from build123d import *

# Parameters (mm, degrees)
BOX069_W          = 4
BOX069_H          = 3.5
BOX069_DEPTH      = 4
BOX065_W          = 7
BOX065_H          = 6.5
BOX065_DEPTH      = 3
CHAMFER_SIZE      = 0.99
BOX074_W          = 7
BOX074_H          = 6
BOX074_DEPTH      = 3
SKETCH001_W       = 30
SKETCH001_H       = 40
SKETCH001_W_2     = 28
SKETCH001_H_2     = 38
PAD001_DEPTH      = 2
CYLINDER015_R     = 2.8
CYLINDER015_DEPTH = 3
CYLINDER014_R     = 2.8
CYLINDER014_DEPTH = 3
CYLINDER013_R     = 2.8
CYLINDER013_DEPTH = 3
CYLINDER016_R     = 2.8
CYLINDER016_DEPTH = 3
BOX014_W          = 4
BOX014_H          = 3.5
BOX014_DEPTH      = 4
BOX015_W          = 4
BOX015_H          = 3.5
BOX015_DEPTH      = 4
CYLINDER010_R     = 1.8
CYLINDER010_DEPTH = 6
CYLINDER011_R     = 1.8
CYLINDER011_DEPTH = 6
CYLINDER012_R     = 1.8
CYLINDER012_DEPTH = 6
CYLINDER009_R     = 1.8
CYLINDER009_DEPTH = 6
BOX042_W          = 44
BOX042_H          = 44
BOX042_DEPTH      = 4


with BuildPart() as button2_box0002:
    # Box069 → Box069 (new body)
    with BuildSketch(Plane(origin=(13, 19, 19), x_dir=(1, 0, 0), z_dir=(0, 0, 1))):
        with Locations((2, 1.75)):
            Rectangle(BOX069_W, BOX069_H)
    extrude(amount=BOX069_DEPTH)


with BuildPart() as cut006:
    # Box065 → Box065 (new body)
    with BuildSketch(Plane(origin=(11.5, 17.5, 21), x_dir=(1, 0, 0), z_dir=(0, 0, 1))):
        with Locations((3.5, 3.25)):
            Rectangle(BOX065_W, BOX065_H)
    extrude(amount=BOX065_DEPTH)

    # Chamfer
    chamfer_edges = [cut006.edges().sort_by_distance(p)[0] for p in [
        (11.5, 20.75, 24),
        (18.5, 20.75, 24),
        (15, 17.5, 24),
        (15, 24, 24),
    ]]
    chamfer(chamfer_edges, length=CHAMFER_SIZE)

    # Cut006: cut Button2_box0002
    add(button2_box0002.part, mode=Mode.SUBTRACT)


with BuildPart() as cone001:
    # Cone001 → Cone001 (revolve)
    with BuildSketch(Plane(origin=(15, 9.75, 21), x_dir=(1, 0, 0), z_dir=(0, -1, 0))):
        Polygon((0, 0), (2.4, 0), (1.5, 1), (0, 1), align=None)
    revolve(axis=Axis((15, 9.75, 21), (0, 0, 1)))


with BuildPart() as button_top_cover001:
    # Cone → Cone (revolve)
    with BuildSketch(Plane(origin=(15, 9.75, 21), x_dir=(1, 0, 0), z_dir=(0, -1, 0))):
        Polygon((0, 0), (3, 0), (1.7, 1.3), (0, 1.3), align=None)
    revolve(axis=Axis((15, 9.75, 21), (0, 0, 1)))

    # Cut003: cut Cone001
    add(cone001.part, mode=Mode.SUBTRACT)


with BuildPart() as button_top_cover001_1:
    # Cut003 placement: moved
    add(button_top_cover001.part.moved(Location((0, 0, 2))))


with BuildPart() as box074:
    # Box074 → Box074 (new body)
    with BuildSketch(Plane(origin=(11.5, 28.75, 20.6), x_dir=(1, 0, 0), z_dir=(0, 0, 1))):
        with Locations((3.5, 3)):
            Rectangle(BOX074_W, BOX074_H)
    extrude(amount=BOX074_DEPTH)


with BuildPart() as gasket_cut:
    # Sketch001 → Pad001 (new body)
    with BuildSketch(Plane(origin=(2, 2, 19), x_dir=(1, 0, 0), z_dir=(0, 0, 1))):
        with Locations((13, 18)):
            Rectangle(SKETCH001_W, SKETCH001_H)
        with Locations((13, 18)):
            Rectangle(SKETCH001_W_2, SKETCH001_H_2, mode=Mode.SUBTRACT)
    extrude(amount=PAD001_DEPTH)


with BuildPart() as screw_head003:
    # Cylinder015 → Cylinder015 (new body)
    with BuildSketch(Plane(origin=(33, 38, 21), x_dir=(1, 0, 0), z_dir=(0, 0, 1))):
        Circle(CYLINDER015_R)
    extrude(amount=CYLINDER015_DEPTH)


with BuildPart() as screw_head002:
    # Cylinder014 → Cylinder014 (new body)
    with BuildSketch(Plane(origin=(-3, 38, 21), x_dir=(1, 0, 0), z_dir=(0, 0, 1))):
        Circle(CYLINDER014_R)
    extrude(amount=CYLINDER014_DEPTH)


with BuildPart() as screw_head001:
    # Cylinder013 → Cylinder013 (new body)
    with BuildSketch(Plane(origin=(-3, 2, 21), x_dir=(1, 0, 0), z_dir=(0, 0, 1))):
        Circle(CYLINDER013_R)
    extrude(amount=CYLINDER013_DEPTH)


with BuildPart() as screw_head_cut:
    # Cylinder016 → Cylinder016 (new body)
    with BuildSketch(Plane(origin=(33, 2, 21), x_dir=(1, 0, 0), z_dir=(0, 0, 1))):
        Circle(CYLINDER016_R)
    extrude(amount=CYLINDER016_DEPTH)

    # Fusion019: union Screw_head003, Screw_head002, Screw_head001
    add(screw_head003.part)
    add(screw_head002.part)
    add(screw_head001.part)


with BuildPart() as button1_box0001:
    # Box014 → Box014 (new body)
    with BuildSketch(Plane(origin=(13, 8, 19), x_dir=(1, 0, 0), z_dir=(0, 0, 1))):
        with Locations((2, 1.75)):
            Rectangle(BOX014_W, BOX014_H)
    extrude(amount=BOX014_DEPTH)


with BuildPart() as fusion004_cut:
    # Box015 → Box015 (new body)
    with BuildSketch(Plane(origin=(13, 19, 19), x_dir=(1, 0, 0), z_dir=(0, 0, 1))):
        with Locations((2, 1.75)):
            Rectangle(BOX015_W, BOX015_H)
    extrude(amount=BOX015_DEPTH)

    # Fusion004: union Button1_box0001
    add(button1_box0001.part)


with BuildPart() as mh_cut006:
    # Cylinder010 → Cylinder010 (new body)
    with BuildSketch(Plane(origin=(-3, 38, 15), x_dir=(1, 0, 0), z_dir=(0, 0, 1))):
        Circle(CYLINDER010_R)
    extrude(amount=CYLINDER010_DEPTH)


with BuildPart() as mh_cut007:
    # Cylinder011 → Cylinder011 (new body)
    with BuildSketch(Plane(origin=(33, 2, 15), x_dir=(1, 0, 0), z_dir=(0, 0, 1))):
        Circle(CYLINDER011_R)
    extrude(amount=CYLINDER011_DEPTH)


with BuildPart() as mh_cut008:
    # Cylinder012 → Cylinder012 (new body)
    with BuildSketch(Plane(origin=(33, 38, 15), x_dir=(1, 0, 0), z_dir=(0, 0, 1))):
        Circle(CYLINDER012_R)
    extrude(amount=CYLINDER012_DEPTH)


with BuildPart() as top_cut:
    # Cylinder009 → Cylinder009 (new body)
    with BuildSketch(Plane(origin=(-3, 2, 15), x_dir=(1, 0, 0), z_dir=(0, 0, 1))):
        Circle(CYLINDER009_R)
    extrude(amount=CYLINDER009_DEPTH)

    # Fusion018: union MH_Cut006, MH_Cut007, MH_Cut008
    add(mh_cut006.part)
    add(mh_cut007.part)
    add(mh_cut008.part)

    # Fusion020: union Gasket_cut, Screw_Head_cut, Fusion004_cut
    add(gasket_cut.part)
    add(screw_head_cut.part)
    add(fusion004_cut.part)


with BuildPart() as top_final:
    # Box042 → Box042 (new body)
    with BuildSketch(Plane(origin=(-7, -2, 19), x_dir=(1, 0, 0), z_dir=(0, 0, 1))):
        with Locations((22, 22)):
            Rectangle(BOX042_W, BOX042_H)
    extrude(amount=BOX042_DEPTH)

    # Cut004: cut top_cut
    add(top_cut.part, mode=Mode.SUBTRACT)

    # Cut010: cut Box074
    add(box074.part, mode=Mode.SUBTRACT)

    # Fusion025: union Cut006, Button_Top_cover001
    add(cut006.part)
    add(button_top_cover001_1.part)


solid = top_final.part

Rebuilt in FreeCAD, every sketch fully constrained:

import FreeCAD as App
import Part
import Sketcher
from FreeCAD import Vector
Q = App.Units.Quantity


def edges_at(feature, points):
    """Names of the edges that pass closest to the given points."""
    edges = feature.Shape.Edges
    near = lambda p: min(range(len(edges)), key=lambda i: edges[i].distToShape(Part.Vertex(*p))[0])
    return sorted({f"Edge{near(p) + 1}" for p in points})


def add_polygon(sketch, points):
    """Adds a closed chain of lines whose ends are joined by coincident constraints."""
    first, n = sketch.GeometryCount, len(points)
    for a, b in zip(points, points[1:] + points[:1]):
        sketch.addGeometry(Part.LineSegment(App.Vector(*a, 0), App.Vector(*b, 0)), False)
    for i in range(n):
        sketch.addConstraint(Sketcher.Constraint("Coincident", first + i, 2, first + (i + 1) % n, 1))

doc = App.newDocument("Part")
body = doc.addObject("PartDesign::Body", "Body")

# Sketch on XY plane
sketch1 = body.newObject("Sketcher::SketchObject", "Sketch")
sketch1.AttachmentSupport = (doc.getObject("XY_Plane"), [""])
sketch1.MapMode = "FlatFace"
sketch1.AttachmentOffset = App.Placement(Vector(0, 0, 19), App.Rotation())
add_polygon(sketch1, [(13, 22.5), (13, 19), (17, 19), (17, 22.5)])  # lines 0-3
sketch1.addConstraint([
    Sketcher.Constraint("Vertical", 0),
    Sketcher.Constraint("Horizontal", 1),
    Sketcher.Constraint("Vertical", 2),
    Sketcher.Constraint("Horizontal", 3),
    Sketcher.Constraint("DistanceX", 1, 1, 1, 2, Q("4 mm")),
    Sketcher.Constraint("DistanceY", 0, 2, 0, 1, Q("3.5 mm")),
    Sketcher.Constraint("DistanceX", -1, 1, 0, 2, Q("13 mm")),
    Sketcher.Constraint("DistanceY", -1, 1, 0, 2, Q("19 mm")),
])
pad1 = body.newObject("PartDesign::Pad", "Pad")
pad1.Profile = sketch1
pad1.Length = 4
body2 = doc.addObject("PartDesign::Body", "Body001")

# Sketch on XY plane
sketch2 = body2.newObject("Sketcher::SketchObject", "Sketch001")
sketch2.AttachmentSupport = (doc.getObject("XY_Plane001"), [""])
sketch2.MapMode = "FlatFace"
sketch2.AttachmentOffset = App.Placement(Vector(0, 0, 21), App.Rotation())
add_polygon(sketch2, [(11.5, 24), (11.5, 17.5), (18.5, 17.5), (18.5, 24)])  # lines 0-3
sketch2.addConstraint([
    Sketcher.Constraint("Vertical", 0),
    Sketcher.Constraint("Horizontal", 1),
    Sketcher.Constraint("Vertical", 2),
    Sketcher.Constraint("Horizontal", 3),
    Sketcher.Constraint("DistanceX", 1, 1, 1, 2, Q("7 mm")),
    Sketcher.Constraint("DistanceY", 0, 2, 0, 1, Q("6.5 mm")),
    Sketcher.Constraint("DistanceY", -1, 1, 2, 2, Q("24 mm")),
    Sketcher.Constraint("DistanceX", -1, 1, 0, 2, Q("11.5 mm")),
])
pad2 = body2.newObject("PartDesign::Pad", "Pad001")
pad2.Profile = sketch2
pad2.Length = 3
doc.recompute()

chamfer = body2.newObject("PartDesign::Chamfer", "Chamfer")
chamfer.Base = (pad2, edges_at(pad2, [
    (11.5, 20.75, 24),
    (18.5, 20.75, 24),
    (15, 17.5, 24),
    (15, 24, 24),
]))
chamfer.Size = 0.99
doc.recompute()

boolean = body2.newObject("PartDesign::Boolean", "Boolean")
boolean.Type = "Cut"
boolean.addObjects([body])
body3 = doc.addObject("PartDesign::Body", "Body002")

# Sketch on XZ plane
sketch3 = body3.newObject("Sketcher::SketchObject", "Sketch002")
sketch3.AttachmentSupport = (doc.getObject("XZ_Plane002"), [""])
sketch3.MapMode = "FlatFace"
sketch3.AttachmentOffset = App.Placement(Vector(0, 0, -9.75), App.Rotation())
add_polygon(sketch3, [(15, 21), (17.4, 21), (16.5, 22), (15, 22)])  # lines 0-3
sketch3.addGeometry(Part.LineSegment(Vector(15, 21, 0), Vector(15, 22, 0)), True)  # axis
sketch3.addConstraint([
    Sketcher.Constraint("Horizontal", 0),
    Sketcher.Constraint("Horizontal", 2),
    Sketcher.Constraint("Vertical", 3),
    Sketcher.Constraint("Vertical", 4),
    Sketcher.Constraint("Coincident", 4, 1, 3, 2),
    Sketcher.Constraint("Horizontal", 1, 2, 4, 2),
    Sketcher.Constraint("DistanceY", 3, 2, 3, 1, Q("1 mm")),
    Sketcher.Constraint("DistanceX", 0, 1, 0, 2, Q("2.4 mm")),
    Sketcher.Constraint("DistanceX", 2, 2, 2, 1, Q("1.5 mm")),
    Sketcher.Constraint("DistanceY", -1, 1, 0, 2, Q("21 mm")),
    Sketcher.Constraint("DistanceX", -1, 1, 2, 2, Q("15 mm")),
])
revolution = body3.newObject("PartDesign::Revolution", "Revolution")
revolution.Profile = sketch3
revolution.ReferenceAxis = (sketch3, ["Axis0"])
revolution.Angle = 360
body4 = doc.addObject("PartDesign::Body", "Body003")

# Sketch on XZ plane
sketch4 = body4.newObject("Sketcher::SketchObject", "Sketch003")
sketch4.AttachmentSupport = (doc.getObject("XZ_Plane003"), [""])
sketch4.MapMode = "FlatFace"
sketch4.AttachmentOffset = App.Placement(Vector(0, 0, -9.75), App.Rotation())
add_polygon(sketch4, [(15, 21), (18, 21), (16.7, 22.3), (15, 22.3)])  # lines 0-3
sketch4.addGeometry(Part.LineSegment(Vector(15, 21, 0), Vector(15, 22.3, 0)), True)  # axis
sketch4.addConstraint([
    Sketcher.Constraint("Horizontal", 0),
    Sketcher.Constraint("Horizontal", 2),
    Sketcher.Constraint("Vertical", 3),
    Sketcher.Constraint("Vertical", 4),
    Sketcher.Constraint("Coincident", 4, 1, 3, 2),
    Sketcher.Constraint("Horizontal", 1, 2, 4, 2),
    Sketcher.Constraint("DistanceX", 0, 1, 0, 2, Q("3 mm")),
    Sketcher.Constraint("Angle", 1, Q("135 deg")),
    Sketcher.Constraint("DistanceX", 2, 2, 2, 1, Q("1.7 mm")),
    Sketcher.Constraint("DistanceX", -1, 1, 0, 2, Q("18 mm")),
    Sketcher.Constraint("DistanceY", -1, 1, 0, 2, Q("21 mm")),
])
revolution2 = body4.newObject("PartDesign::Revolution", "Revolution001")
revolution2.Profile = sketch4
revolution2.ReferenceAxis = (sketch4, ["Axis0"])
revolution2.Angle = 360
doc.recompute()

boolean2 = body4.newObject("PartDesign::Boolean", "Boolean001")
boolean2.Type = "Cut"
boolean2.addObjects([body3])
body5 = doc.addObject("PartDesign::Body", "Body004")
doc.recompute()

body4.Placement = App.Placement(Vector(0, 0, 2), App.Rotation(Vector(0, 0, 1), 0))
boolean3 = body5.newObject("PartDesign::Boolean", "Boolean002")
boolean3.Type = "Fuse"
boolean3.addObjects([body4])
body6 = doc.addObject("PartDesign::Body", "Body005")

# Sketch on XY plane
sketch5 = body6.newObject("Sketcher::SketchObject", "Sketch004")
sketch5.AttachmentSupport = (doc.getObject("XY_Plane005"), [""])
sketch5.MapMode = "FlatFace"
sketch5.AttachmentOffset = App.Placement(Vector(0, 0, 20.6), App.Rotation())
add_polygon(sketch5, [(11.5, 34.75), (11.5, 28.75), (18.5, 28.75), (18.5, 34.75)])  # lines 0-3
sketch5.addConstraint([
    Sketcher.Constraint("Vertical", 0),
    Sketcher.Constraint("Horizontal", 1),
    Sketcher.Constraint("Vertical", 2),
    Sketcher.Constraint("Horizontal", 3),
    Sketcher.Constraint("DistanceX", 1, 1, 1, 2, Q("7 mm")),
    Sketcher.Constraint("DistanceY", 0, 2, 0, 1, Q("6 mm")),
    Sketcher.Constraint("DistanceX", -1, 1, 0, 2, Q("11.5 mm")),
    Sketcher.Constraint("DistanceY", -1, 1, 0, 2, Q("28.75 mm")),
])
pad3 = body6.newObject("PartDesign::Pad", "Pad002")
pad3.Profile = sketch5
pad3.Length = 3
body7 = doc.addObject("PartDesign::Body", "Body006")

# Sketch on XY plane
sketch6 = body7.newObject("Sketcher::SketchObject", "Sketch005")
sketch6.AttachmentSupport = (doc.getObject("XY_Plane006"), [""])
sketch6.MapMode = "FlatFace"
sketch6.AttachmentOffset = App.Placement(Vector(0, 0, 19), App.Rotation())
add_polygon(sketch6, [(0, 40), (0, 0), (30, 0), (30, 40)])  # lines 0-3
add_polygon(sketch6, [(29, 1), (1, 1), (1, 39), (29, 39)])  # lines 4-7
sketch6.addConstraint([
    Sketcher.Constraint("Vertical", 0),
    Sketcher.Constraint("Horizontal", 1),
    Sketcher.Constraint("Vertical", 2),
    Sketcher.Constraint("Horizontal", 3),
    Sketcher.Constraint("Horizontal", 4),
    Sketcher.Constraint("Vertical", 5),
    Sketcher.Constraint("Horizontal", 6),
    Sketcher.Constraint("Vertical", 7),
    Sketcher.Constraint("Coincident", 0, 2, -1, 1),
    Sketcher.Constraint("DistanceX", 1, 1, 1, 2, Q("30 mm")),
    Sketcher.Constraint("DistanceX", 4, 2, 4, 1, Q("28 mm")),
    Sketcher.Constraint("DistanceY", 0, 2, 0, 1, Q("40 mm")),
    Sketcher.Constraint("DistanceY", 5, 1, 5, 2, Q("38 mm")),
    Sketcher.Constraint("DistanceX", -1, 1, 4, 2, Q("1 mm")),
    Sketcher.Constraint("DistanceY", -1, 1, 4, 2, Q("1 mm")),
])
pad4 = body7.newObject("PartDesign::Pad", "Pad003")
pad4.Profile = sketch6
pad4.Length = 2
body8 = doc.addObject("PartDesign::Body", "Body007")

# Sketch on XY plane
sketch7 = body8.newObject("Sketcher::SketchObject", "Sketch006")
sketch7.AttachmentSupport = (doc.getObject("XY_Plane007"), [""])
sketch7.MapMode = "FlatFace"
sketch7.AttachmentOffset = App.Placement(Vector(0, 0, 21), App.Rotation())
sketch7.addGeometry(Part.Circle(Vector(33, 38, 0), Vector(0, 0, 1), 2.8), False)
sketch7.addConstraint([
    Sketcher.Constraint("Diameter", 0, Q("5.6 mm")),
    Sketcher.Constraint("DistanceX", -1, 1, 0, 3, Q("33 mm")),
    Sketcher.Constraint("DistanceY", -1, 1, 0, 3, Q("38 mm")),
])
pad5 = body8.newObject("PartDesign::Pad", "Pad004")
pad5.Profile = sketch7
pad5.Length = 3
body9 = doc.addObject("PartDesign::Body", "Body008")

# Sketch on XY plane
sketch8 = body9.newObject("Sketcher::SketchObject", "Sketch007")
sketch8.AttachmentSupport = (doc.getObject("XY_Plane008"), [""])
sketch8.MapMode = "FlatFace"
sketch8.AttachmentOffset = App.Placement(Vector(0, 0, 21), App.Rotation())
sketch8.addGeometry(Part.Circle(Vector(-3, 38, 0), Vector(0, 0, 1), 2.8), False)
sketch8.addConstraint([
    Sketcher.Constraint("Diameter", 0, Q("5.6 mm")),
    Sketcher.Constraint("DistanceX", 0, 3, -1, 1, Q("3 mm")),
    Sketcher.Constraint("DistanceY", -1, 1, 0, 3, Q("38 mm")),
])
pad6 = body9.newObject("PartDesign::Pad", "Pad005")
pad6.Profile = sketch8
pad6.Length = 3
body10 = doc.addObject("PartDesign::Body", "Body009")

# Sketch on XY plane
sketch9 = body10.newObject("Sketcher::SketchObject", "Sketch008")
sketch9.AttachmentSupport = (doc.getObject("XY_Plane009"), [""])
sketch9.MapMode = "FlatFace"
sketch9.AttachmentOffset = App.Placement(Vector(0, 0, 21), App.Rotation())
sketch9.addGeometry(Part.Circle(Vector(-3, 2, 0), Vector(0, 0, 1), 2.8), False)
sketch9.addConstraint([
    Sketcher.Constraint("Diameter", 0, Q("5.6 mm")),
    Sketcher.Constraint("DistanceX", 0, 3, -1, 1, Q("3 mm")),
    Sketcher.Constraint("DistanceY", -1, 1, 0, 3, Q("2 mm")),
])
pad7 = body10.newObject("PartDesign::Pad", "Pad006")
pad7.Profile = sketch9
pad7.Length = 3
body11 = doc.addObject("PartDesign::Body", "Body010")
body11.AllowCompound = True

# Sketch on XY plane
sketch10 = body11.newObject("Sketcher::SketchObject", "Sketch009")
sketch10.AttachmentSupport = (doc.getObject("XY_Plane010"), [""])
sketch10.MapMode = "FlatFace"
sketch10.AttachmentOffset = App.Placement(Vector(0, 0, 21), App.Rotation())
sketch10.addGeometry(Part.Circle(Vector(33, 2, 0), Vector(0, 0, 1), 2.8), False)
sketch10.addConstraint([
    Sketcher.Constraint("Diameter", 0, Q("5.6 mm")),
    Sketcher.Constraint("DistanceX", -1, 1, 0, 3, Q("33 mm")),
    Sketcher.Constraint("DistanceY", -1, 1, 0, 3, Q("2 mm")),
])
pad8 = body11.newObject("PartDesign::Pad", "Pad007")
pad8.Profile = sketch10
pad8.Length = 3
doc.recompute()

boolean4 = body11.newObject("PartDesign::Boolean", "Boolean003")
boolean4.Type = "Fuse"
boolean4.addObjects([body8])
doc.recompute()

boolean5 = body11.newObject("PartDesign::Boolean", "Boolean004")
boolean5.Type = "Fuse"
boolean5.addObjects([body9])
doc.recompute()

boolean6 = body11.newObject("PartDesign::Boolean", "Boolean005")
boolean6.Type = "Fuse"
boolean6.addObjects([body10])
body12 = doc.addObject("PartDesign::Body", "Body011")

# Sketch on XY plane
sketch11 = body12.newObject("Sketcher::SketchObject", "Sketch010")
sketch11.AttachmentSupport = (doc.getObject("XY_Plane011"), [""])
sketch11.MapMode = "FlatFace"
sketch11.AttachmentOffset = App.Placement(Vector(0, 0, 19), App.Rotation())
add_polygon(sketch11, [(13, 11.5), (13, 8), (17, 8), (17, 11.5)])  # lines 0-3
sketch11.addConstraint([
    Sketcher.Constraint("Vertical", 0),
    Sketcher.Constraint("Horizontal", 1),
    Sketcher.Constraint("Vertical", 2),
    Sketcher.Constraint("Horizontal", 3),
    Sketcher.Constraint("DistanceX", 1, 1, 1, 2, Q("4 mm")),
    Sketcher.Constraint("DistanceY", 0, 2, 0, 1, Q("3.5 mm")),
    Sketcher.Constraint("DistanceX", -1, 1, 0, 2, Q("13 mm")),
    Sketcher.Constraint("DistanceY", -1, 1, 0, 2, Q("8 mm")),
])
pad9 = body12.newObject("PartDesign::Pad", "Pad008")
pad9.Profile = sketch11
pad9.Length = 4
body13 = doc.addObject("PartDesign::Body", "Body012")
body13.AllowCompound = True

# Sketch on XY plane
sketch12 = body13.newObject("Sketcher::SketchObject", "Sketch011")
sketch12.AttachmentSupport = (doc.getObject("XY_Plane012"), [""])
sketch12.MapMode = "FlatFace"
sketch12.AttachmentOffset = App.Placement(Vector(0, 0, 19), App.Rotation())
add_polygon(sketch12, [(13, 22.5), (13, 19), (17, 19), (17, 22.5)])  # lines 0-3
sketch12.addConstraint([
    Sketcher.Constraint("Vertical", 0),
    Sketcher.Constraint("Horizontal", 1),
    Sketcher.Constraint("Vertical", 2),
    Sketcher.Constraint("Horizontal", 3),
    Sketcher.Constraint("DistanceX", 1, 1, 1, 2, Q("4 mm")),
    Sketcher.Constraint("DistanceY", 0, 2, 0, 1, Q("3.5 mm")),
    Sketcher.Constraint("DistanceX", -1, 1, 0, 2, Q("13 mm")),
    Sketcher.Constraint("DistanceY", -1, 1, 0, 2, Q("19 mm")),
])
pad10 = body13.newObject("PartDesign::Pad", "Pad009")
pad10.Profile = sketch12
pad10.Length = 4
doc.recompute()

boolean7 = body13.newObject("PartDesign::Boolean", "Boolean006")
boolean7.Type = "Fuse"
boolean7.addObjects([body12])
body14 = doc.addObject("PartDesign::Body", "Body013")

# Sketch on XY plane
sketch13 = body14.newObject("Sketcher::SketchObject", "Sketch012")
sketch13.AttachmentSupport = (doc.getObject("XY_Plane013"), [""])
sketch13.MapMode = "FlatFace"
sketch13.AttachmentOffset = App.Placement(Vector(0, 0, 15), App.Rotation())
sketch13.addGeometry(Part.Circle(Vector(-3, 38, 0), Vector(0, 0, 1), 1.8), False)
sketch13.addConstraint([
    Sketcher.Constraint("Diameter", 0, Q("3.6 mm")),
    Sketcher.Constraint("DistanceX", 0, 3, -1, 1, Q("3 mm")),
    Sketcher.Constraint("DistanceY", -1, 1, 0, 3, Q("38 mm")),
])
pad11 = body14.newObject("PartDesign::Pad", "Pad010")
pad11.Profile = sketch13
pad11.Length = 6
body15 = doc.addObject("PartDesign::Body", "Body014")

# Sketch on XY plane
sketch14 = body15.newObject("Sketcher::SketchObject", "Sketch013")
sketch14.AttachmentSupport = (doc.getObject("XY_Plane014"), [""])
sketch14.MapMode = "FlatFace"
sketch14.AttachmentOffset = App.Placement(Vector(0, 0, 15), App.Rotation())
sketch14.addGeometry(Part.Circle(Vector(33, 2, 0), Vector(0, 0, 1), 1.8), False)
sketch14.addConstraint([
    Sketcher.Constraint("Diameter", 0, Q("3.6 mm")),
    Sketcher.Constraint("DistanceX", -1, 1, 0, 3, Q("33 mm")),
    Sketcher.Constraint("DistanceY", -1, 1, 0, 3, Q("2 mm")),
])
pad12 = body15.newObject("PartDesign::Pad", "Pad011")
pad12.Profile = sketch14
pad12.Length = 6
body16 = doc.addObject("PartDesign::Body", "Body015")

# Sketch on XY plane
sketch15 = body16.newObject("Sketcher::SketchObject", "Sketch014")
sketch15.AttachmentSupport = (doc.getObject("XY_Plane015"), [""])
sketch15.MapMode = "FlatFace"
sketch15.AttachmentOffset = App.Placement(Vector(0, 0, 15), App.Rotation())
sketch15.addGeometry(Part.Circle(Vector(33, 38, 0), Vector(0, 0, 1), 1.8), False)
sketch15.addConstraint([
    Sketcher.Constraint("Diameter", 0, Q("3.6 mm")),
    Sketcher.Constraint("DistanceX", -1, 1, 0, 3, Q("33 mm")),
    Sketcher.Constraint("DistanceY", -1, 1, 0, 3, Q("38 mm")),
])
pad13 = body16.newObject("PartDesign::Pad", "Pad012")
pad13.Profile = sketch15
pad13.Length = 6
body17 = doc.addObject("PartDesign::Body", "Body016")
body17.AllowCompound = True

# Sketch on XY plane
sketch16 = body17.newObject("Sketcher::SketchObject", "Sketch015")
sketch16.AttachmentSupport = (doc.getObject("XY_Plane016"), [""])
sketch16.MapMode = "FlatFace"
sketch16.AttachmentOffset = App.Placement(Vector(0, 0, 15), App.Rotation())
sketch16.addGeometry(Part.Circle(Vector(-3, 2, 0), Vector(0, 0, 1), 1.8), False)
sketch16.addConstraint([
    Sketcher.Constraint("Diameter", 0, Q("3.6 mm")),
    Sketcher.Constraint("DistanceX", 0, 3, -1, 1, Q("3 mm")),
    Sketcher.Constraint("DistanceY", -1, 1, 0, 3, Q("2 mm")),
])
pad14 = body17.newObject("PartDesign::Pad", "Pad013")
pad14.Profile = sketch16
pad14.Length = 6
doc.recompute()

boolean8 = body17.newObject("PartDesign::Boolean", "Boolean007")
boolean8.Type = "Fuse"
boolean8.addObjects([body14])
doc.recompute()

boolean9 = body17.newObject("PartDesign::Boolean", "Boolean008")
boolean9.Type = "Fuse"
boolean9.addObjects([body15])
doc.recompute()

boolean10 = body17.newObject("PartDesign::Boolean", "Boolean009")
boolean10.Type = "Fuse"
boolean10.addObjects([body16])
doc.recompute()

boolean11 = body17.newObject("PartDesign::Boolean", "Boolean010")
boolean11.Type = "Fuse"
boolean11.addObjects([body7])
doc.recompute()

boolean12 = body17.newObject("PartDesign::Boolean", "Boolean011")
boolean12.Type = "Fuse"
boolean12.addObjects([body11])
doc.recompute()

boolean13 = body17.newObject("PartDesign::Boolean", "Boolean012")
boolean13.Type = "Fuse"
boolean13.addObjects([body13])
body18 = doc.addObject("PartDesign::Body", "Body017")

# Sketch on XY plane
sketch17 = body18.newObject("Sketcher::SketchObject", "Sketch016")
sketch17.AttachmentSupport = (doc.getObject("XY_Plane017"), [""])
sketch17.MapMode = "FlatFace"
sketch17.AttachmentOffset = App.Placement(Vector(0, 0, 19), App.Rotation())
add_polygon(sketch17, [(-7, 42), (-7, -2), (37, -2), (37, 42)])  # lines 0-3
sketch17.addConstraint([
    Sketcher.Constraint("Vertical", 0),
    Sketcher.Constraint("Horizontal", 1),
    Sketcher.Constraint("Vertical", 2),
    Sketcher.Constraint("Horizontal", 3),
    Sketcher.Constraint("Equal", 3, 0),
    Sketcher.Constraint("DistanceX", 1, 1, 1, 2, Q("44 mm")),
    Sketcher.Constraint("DistanceX", 0, 2, -1, 1, Q("7 mm")),
    Sketcher.Constraint("DistanceY", 0, 2, -1, 1, Q("2 mm")),
])
pad15 = body18.newObject("PartDesign::Pad", "Pad014")
pad15.Profile = sketch17
pad15.Length = 4
doc.recompute()

boolean14 = body18.newObject("PartDesign::Boolean", "Boolean013")
boolean14.Type = "Cut"
boolean14.addObjects([body17])
doc.recompute()

boolean15 = body18.newObject("PartDesign::Boolean", "Boolean014")
boolean15.Type = "Cut"
boolean15.addObjects([body6])
doc.recompute()

boolean16 = body18.newObject("PartDesign::Boolean", "Boolean015")
boolean16.Type = "Fuse"
boolean16.addObjects([body2])
doc.recompute()

boolean17 = body18.newObject("PartDesign::Boolean", "Boolean016")
boolean17.Type = "Fuse"
boolean17.addObjects([body5])

doc.recompute()
